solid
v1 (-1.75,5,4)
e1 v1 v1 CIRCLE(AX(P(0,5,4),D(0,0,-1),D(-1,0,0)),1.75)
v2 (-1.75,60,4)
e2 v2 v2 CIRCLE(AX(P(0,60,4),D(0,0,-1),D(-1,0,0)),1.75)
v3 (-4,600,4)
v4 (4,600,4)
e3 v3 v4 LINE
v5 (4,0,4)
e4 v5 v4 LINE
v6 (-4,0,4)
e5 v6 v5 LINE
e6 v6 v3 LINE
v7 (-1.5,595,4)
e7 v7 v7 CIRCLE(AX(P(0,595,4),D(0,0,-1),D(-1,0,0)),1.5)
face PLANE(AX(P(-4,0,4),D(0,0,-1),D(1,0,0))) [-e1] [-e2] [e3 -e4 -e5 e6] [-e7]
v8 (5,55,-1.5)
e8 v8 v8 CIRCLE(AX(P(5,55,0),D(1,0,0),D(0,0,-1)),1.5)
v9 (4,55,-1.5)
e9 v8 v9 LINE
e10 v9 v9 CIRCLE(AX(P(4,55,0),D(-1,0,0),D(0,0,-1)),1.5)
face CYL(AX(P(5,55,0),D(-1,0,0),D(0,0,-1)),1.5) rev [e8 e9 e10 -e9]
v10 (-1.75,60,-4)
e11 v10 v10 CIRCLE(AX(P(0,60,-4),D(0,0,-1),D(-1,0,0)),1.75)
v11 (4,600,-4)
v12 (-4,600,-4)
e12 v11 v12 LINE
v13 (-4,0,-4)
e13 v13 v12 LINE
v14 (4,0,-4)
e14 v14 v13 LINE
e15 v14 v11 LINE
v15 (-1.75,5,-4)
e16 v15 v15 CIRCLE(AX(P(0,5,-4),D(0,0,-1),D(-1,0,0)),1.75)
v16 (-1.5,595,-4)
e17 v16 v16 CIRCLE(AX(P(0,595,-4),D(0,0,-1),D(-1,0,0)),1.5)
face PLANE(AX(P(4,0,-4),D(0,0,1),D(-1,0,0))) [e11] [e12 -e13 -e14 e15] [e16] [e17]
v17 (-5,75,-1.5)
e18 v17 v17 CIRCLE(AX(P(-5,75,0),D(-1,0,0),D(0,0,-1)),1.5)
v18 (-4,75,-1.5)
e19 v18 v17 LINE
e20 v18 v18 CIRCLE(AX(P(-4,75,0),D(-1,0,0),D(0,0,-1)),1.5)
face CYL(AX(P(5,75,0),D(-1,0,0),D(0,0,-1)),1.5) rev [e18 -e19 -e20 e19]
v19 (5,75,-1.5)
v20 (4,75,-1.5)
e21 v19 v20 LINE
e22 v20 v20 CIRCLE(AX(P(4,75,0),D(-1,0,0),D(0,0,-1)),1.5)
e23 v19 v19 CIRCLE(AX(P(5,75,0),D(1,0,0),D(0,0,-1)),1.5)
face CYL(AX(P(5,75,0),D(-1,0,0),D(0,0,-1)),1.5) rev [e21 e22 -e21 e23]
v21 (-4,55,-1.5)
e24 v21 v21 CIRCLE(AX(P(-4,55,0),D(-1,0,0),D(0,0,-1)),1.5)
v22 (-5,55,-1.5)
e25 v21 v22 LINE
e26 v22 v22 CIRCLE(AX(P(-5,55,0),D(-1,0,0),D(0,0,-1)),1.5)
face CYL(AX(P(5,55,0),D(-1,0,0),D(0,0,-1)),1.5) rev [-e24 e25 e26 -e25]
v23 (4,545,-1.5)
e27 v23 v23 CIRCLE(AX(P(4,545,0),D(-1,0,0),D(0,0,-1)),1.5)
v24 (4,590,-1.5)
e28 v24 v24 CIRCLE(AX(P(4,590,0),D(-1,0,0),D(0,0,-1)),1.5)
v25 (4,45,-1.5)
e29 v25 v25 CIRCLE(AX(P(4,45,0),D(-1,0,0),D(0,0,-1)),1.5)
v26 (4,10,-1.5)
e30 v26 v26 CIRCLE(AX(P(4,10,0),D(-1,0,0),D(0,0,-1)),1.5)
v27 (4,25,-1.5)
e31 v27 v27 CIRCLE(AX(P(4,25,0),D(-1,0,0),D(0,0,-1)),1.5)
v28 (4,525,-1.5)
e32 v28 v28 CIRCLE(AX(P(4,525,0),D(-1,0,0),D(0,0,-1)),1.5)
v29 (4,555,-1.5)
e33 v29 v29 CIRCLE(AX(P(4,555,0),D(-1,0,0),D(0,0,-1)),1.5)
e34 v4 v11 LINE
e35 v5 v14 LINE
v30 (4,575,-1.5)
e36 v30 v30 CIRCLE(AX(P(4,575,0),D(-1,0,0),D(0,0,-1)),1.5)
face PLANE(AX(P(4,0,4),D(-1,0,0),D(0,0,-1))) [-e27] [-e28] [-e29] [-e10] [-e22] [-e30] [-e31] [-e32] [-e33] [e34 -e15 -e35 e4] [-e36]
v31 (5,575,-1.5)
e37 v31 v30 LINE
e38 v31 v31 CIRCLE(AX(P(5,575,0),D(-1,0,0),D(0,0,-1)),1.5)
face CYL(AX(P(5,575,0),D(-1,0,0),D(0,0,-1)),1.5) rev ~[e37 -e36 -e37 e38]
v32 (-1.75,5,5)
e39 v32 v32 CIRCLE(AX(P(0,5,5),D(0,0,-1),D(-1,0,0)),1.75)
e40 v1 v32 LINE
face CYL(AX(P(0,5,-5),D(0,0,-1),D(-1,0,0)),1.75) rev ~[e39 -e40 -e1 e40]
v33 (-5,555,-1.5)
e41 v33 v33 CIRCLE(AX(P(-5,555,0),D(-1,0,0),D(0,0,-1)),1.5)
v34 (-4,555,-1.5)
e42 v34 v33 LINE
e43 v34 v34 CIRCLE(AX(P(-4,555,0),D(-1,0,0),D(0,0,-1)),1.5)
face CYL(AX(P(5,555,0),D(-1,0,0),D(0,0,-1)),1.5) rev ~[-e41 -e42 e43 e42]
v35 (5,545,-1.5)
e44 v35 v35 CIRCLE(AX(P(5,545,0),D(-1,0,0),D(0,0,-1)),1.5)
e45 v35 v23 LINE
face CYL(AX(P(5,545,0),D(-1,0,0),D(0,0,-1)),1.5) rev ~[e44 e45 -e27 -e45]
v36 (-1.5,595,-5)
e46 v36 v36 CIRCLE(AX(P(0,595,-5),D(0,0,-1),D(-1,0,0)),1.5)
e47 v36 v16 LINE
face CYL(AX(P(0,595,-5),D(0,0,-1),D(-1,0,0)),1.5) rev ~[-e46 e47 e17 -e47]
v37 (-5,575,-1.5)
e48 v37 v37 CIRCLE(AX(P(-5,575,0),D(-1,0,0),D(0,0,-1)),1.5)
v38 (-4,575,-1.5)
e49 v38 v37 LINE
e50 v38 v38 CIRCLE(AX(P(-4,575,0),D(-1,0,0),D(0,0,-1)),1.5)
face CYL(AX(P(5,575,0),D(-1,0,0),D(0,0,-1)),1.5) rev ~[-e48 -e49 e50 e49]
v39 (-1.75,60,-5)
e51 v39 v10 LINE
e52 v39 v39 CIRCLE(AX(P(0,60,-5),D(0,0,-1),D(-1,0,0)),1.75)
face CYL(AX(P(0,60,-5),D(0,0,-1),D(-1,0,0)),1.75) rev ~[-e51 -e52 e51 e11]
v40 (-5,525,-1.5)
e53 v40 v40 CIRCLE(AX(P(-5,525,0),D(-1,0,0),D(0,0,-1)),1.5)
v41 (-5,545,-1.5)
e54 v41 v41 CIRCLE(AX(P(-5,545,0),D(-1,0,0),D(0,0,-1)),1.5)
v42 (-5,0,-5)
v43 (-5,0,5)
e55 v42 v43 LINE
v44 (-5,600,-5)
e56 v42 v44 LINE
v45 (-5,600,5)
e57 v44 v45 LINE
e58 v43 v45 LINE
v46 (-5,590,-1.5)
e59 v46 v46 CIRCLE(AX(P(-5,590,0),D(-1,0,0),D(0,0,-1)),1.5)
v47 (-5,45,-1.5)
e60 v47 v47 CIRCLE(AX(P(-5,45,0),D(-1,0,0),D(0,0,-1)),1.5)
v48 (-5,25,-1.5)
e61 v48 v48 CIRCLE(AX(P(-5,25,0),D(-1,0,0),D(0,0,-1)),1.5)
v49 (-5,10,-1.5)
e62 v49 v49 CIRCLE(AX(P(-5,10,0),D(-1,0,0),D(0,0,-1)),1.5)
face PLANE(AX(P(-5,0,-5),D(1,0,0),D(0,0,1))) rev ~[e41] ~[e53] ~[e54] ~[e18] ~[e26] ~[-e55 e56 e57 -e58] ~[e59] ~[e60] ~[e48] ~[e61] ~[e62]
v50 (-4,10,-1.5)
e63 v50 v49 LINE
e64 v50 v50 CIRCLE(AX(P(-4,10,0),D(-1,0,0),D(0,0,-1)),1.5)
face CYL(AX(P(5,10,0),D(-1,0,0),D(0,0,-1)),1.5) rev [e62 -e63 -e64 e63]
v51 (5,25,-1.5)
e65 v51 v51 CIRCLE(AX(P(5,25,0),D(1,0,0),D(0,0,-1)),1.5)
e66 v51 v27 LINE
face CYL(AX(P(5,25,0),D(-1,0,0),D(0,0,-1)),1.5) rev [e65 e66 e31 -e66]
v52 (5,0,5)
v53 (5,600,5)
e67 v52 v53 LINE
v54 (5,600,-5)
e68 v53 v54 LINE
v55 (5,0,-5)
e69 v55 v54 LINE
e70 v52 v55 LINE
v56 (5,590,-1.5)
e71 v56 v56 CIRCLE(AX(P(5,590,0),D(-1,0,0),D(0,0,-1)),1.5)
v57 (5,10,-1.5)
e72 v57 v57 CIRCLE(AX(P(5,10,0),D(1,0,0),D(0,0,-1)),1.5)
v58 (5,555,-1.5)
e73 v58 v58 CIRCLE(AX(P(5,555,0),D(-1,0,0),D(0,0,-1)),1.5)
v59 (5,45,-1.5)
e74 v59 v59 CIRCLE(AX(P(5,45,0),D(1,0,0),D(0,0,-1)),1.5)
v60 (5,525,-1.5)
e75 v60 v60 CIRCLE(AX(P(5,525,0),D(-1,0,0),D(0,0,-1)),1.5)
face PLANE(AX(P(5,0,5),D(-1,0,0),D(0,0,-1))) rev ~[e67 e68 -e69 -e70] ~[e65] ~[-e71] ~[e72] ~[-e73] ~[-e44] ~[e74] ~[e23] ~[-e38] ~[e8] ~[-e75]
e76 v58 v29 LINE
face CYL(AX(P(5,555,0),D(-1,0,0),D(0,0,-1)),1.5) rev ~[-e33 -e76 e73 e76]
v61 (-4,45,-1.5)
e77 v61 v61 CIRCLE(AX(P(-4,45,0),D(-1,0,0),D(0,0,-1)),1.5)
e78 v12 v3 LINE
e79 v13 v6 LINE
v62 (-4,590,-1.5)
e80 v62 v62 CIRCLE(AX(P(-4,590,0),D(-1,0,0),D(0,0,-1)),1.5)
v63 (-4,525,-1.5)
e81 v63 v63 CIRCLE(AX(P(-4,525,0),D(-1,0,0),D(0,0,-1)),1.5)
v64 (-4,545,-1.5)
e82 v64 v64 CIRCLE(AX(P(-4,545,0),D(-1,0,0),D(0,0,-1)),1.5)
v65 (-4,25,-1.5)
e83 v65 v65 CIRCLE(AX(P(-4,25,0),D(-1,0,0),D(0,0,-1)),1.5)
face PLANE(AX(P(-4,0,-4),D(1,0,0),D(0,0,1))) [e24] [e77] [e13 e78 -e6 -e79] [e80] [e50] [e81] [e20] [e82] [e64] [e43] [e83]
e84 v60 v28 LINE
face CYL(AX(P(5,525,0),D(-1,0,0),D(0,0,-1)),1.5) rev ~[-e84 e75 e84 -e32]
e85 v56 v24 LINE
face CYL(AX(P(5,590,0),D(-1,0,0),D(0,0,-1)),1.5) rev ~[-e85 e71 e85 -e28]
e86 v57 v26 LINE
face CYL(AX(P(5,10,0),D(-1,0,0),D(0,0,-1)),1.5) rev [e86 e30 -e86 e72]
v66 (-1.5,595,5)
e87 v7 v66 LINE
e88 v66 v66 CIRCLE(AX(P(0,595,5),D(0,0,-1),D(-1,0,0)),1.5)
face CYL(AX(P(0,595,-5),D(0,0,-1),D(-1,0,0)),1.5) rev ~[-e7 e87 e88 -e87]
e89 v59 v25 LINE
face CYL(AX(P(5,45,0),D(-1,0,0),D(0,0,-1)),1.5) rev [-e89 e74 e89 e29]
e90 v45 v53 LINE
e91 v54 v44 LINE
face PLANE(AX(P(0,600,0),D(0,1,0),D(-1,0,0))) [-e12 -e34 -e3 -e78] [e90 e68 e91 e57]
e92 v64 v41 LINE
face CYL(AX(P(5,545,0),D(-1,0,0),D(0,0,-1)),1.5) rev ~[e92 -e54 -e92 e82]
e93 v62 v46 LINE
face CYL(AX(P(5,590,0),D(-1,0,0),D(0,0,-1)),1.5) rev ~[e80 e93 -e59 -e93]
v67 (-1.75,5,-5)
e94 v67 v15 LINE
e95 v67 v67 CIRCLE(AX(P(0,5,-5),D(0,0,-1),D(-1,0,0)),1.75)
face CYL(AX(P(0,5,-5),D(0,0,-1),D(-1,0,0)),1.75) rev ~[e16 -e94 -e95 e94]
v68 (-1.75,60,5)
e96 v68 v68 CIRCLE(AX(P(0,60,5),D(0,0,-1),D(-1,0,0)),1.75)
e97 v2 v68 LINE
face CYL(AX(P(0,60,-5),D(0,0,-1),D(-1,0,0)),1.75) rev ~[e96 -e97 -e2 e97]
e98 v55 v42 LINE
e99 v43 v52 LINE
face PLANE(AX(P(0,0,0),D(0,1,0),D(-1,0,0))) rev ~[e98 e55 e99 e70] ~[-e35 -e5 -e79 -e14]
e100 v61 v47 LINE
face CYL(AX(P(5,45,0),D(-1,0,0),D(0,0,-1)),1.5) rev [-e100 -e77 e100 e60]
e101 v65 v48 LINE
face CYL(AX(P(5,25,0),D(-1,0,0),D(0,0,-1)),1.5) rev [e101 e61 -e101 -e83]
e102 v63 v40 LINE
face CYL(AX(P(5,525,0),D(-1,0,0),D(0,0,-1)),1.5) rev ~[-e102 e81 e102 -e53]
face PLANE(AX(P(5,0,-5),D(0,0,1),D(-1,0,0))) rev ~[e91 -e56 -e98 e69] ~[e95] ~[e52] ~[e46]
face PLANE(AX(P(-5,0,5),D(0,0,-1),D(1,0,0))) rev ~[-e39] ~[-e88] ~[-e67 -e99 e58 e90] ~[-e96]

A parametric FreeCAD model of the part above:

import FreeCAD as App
import Part
import Sketcher
from FreeCAD import Vector

doc = App.newDocument("Part")
body = doc.addObject("PartDesign::Body", "Body")

# Sketch on XZ plane
sketch1 = doc.addObject("Sketcher::SketchObject", "Sketch")
body.addObject(sketch1)
sketch1.AttachmentSupport = (doc.XZ_Plane, [""])
sketch1.MapMode = "FlatFace"
sketch1.addGeometry([
    Part.LineSegment(Vector(5, 5, 0), Vector(5, -5, 0)),  # 0
    Part.LineSegment(Vector(5, -5, 0), Vector(-5, -5, 0)),  # 1
    Part.LineSegment(Vector(-5, -5, 0), Vector(-5, 5, 0)),  # 2
    Part.LineSegment(Vector(-5, 5, 0), Vector(5, 5, 0)),  # 3
    Part.LineSegment(Vector(-4, -4, 0), Vector(4, -4, 0)),  # 4
    Part.LineSegment(Vector(4, -4, 0), Vector(4, 4, 0)),  # 5
    Part.LineSegment(Vector(4, 4, 0), Vector(-4, 4, 0)),  # 6
    Part.LineSegment(Vector(-4, 4, 0), Vector(-4, -4, 0)),  # 7
], False)
sketch1.addConstraint([
    Sketcher.Constraint("Coincident", 0, 2, 1, 1),
    Sketcher.Constraint("Coincident", 1, 2, 2, 1),
    Sketcher.Constraint("Coincident", 2, 2, 3, 1),
    Sketcher.Constraint("Coincident", 3, 2, 0, 1),
    Sketcher.Constraint("Coincident", 4, 2, 5, 1),
    Sketcher.Constraint("Coincident", 5, 2, 6, 1),
    Sketcher.Constraint("Coincident", 6, 2, 7, 1),
    Sketcher.Constraint("Coincident", 7, 2, 4, 1),
    Sketcher.Constraint("Vertical", 0),
    Sketcher.Constraint("Horizontal", 1),
    Sketcher.Constraint("Vertical", 2),
    Sketcher.Constraint("Horizontal", 3),
    Sketcher.Constraint("Horizontal", 4),
    Sketcher.Constraint("Vertical", 5),
    Sketcher.Constraint("Horizontal", 6),
    Sketcher.Constraint("Vertical", 7),
    Sketcher.Constraint("Symmetric", 0, 2, 2, 2, -1, 1),
    Sketcher.Constraint("Symmetric", 4, 2, 6, 2, -1, 1),
    Sketcher.Constraint("Equal", 3, 0),
    Sketcher.Constraint("Equal", 6, 5),
    Sketcher.Constraint("DistanceX", 1, 2, 1, 1, 10.0),
    Sketcher.Constraint("DistanceX", 4, 1, 4, 2, 8.0),
])
pad1 = doc.addObject("PartDesign::Pad", "Pad")
body.addObject(pad1)
pad1.Profile = sketch1
pad1.Length = 600
pad1.Reversed = True

# Sketch on YZ plane
sketch2 = doc.addObject("Sketcher::SketchObject", "Sketch001")
body.addObject(sketch2)
sketch2.AttachmentSupport = (doc.YZ_Plane, [""])
sketch2.MapMode = "FlatFace"
sketch2.AttachmentOffset = App.Placement(Vector(0, 0, 5), App.Rotation())
sketch2.addGeometry([
    Part.Circle(Vector(545, 0, 0), Vector(0, 0, 1), 1.5),  # 0
    Part.Circle(Vector(525, 0, 0), Vector(0, 0, 1), 1.5),  # 1
    Part.Circle(Vector(590, 0, 0), Vector(0, 0, 1), 1.5),  # 2
    Part.Circle(Vector(555, 0, 0), Vector(0, 0, 1), 1.5),  # 3
    Part.Circle(Vector(575, 0, 0), Vector(0, 0, 1), 1.5),  # 4
], False)
sketch2.addConstraint([
    Sketcher.Constraint("Equal", 0, 1),
    Sketcher.Constraint("Equal", 1, 2),
    Sketcher.Constraint("Equal", 2, 3),
    Sketcher.Constraint("Equal", 3, 4),
    Sketcher.Constraint("PointOnObject", 0, 3, -1),
    Sketcher.Constraint("PointOnObject", 1, 3, -1),
    Sketcher.Constraint("PointOnObject", 2, 3, -1),
    Sketcher.Constraint("PointOnObject", 3, 3, -1),
    Sketcher.Constraint("PointOnObject", 4, 3, -1),
    Sketcher.Constraint("Diameter", 0, 3.0),
    Sketcher.Constraint("DistanceX", -1, 1, 0, 3, 545.0),
    Sketcher.Constraint("DistanceX", -1, 1, 1, 3, 525.0),
    Sketcher.Constraint("DistanceX", -1, 1, 2, 3, 590.0),
    Sketcher.Constraint("DistanceX", -1, 1, 3, 3, 555.0),
    Sketcher.Constraint("DistanceX", -1, 1, 4, 3, 575.0),
])
doc.recompute()
hole = doc.addObject("PartDesign::Hole", "Hole")
body.addObject(hole)
hole.Profile = sketch2
hole.ThreadType = "None"
hole.Diameter = 3
hole.DepthType = "Dimension"
hole.Depth = 80.45
hole.DrillPoint = "Flat"

# Sketch on XY plane
sketch3 = doc.addObject("Sketcher::SketchObject", "Sketch002")
body.addObject(sketch3)
sketch3.AttachmentSupport = (doc.XY_Plane, [""])
sketch3.MapMode = "FlatFace"
sketch3.AttachmentOffset = App.Placement(Vector(0, 0, -5), App.Rotation())
sketch3.addGeometry([
    Part.Circle(Vector(0, 595, 0), Vector(0, 0, 1), 1.5),
    Part.Circle(Vector(0, 5, 0), Vector(0, 0, 1), 1.8),
    Part.Circle(Vector(0, 60, 0), Vector(0, 0, 1), 1.8),
], False)
sketch3.addConstraint([
    Sketcher.Constraint("Equal", 1, 2),
    Sketcher.Constraint("PointOnObject", 0, 3, -2),
    Sketcher.Constraint("PointOnObject", 1, 3, -2),
    Sketcher.Constraint("PointOnObject", 2, 3, -2),
    Sketcher.Constraint("Diameter", 0, 3.0),
    Sketcher.Constraint("Diameter", 1, 3.5),
    Sketcher.Constraint("DistanceY", -1, 1, 1, 3, 5.0),
    Sketcher.Constraint("DistanceY", 1, 3, 2, 3, 55.0),
    Sketcher.Constraint("DistanceY", -1, 1, 0, 3, 595.0),
])
pocket1 = doc.addObject("PartDesign::Pocket", "Pocket")
body.addObject(pocket1)
pocket1.Profile = sketch3
pocket1.Length = 600
pocket1.Reversed = True
doc.recompute()

datumplane = doc.addObject("PartDesign::Plane", "DatumPlane")
body.addObject(datumplane)
datumplane.AttachmentSupport = (doc.XZ_Plane, [""])
datumplane.MapMode = "FlatFace"
datumplane.AttachmentOffset = App.Placement(Vector(0, 0, -300), App.Rotation())
mirrored = doc.addObject("PartDesign::Mirrored", "Mirrored")
body.addObject(mirrored)
mirrored.Originals = [hole]
mirrored.MirrorPlane = (datumplane, [""])
body.Tip = mirrored

doc.recompute()
